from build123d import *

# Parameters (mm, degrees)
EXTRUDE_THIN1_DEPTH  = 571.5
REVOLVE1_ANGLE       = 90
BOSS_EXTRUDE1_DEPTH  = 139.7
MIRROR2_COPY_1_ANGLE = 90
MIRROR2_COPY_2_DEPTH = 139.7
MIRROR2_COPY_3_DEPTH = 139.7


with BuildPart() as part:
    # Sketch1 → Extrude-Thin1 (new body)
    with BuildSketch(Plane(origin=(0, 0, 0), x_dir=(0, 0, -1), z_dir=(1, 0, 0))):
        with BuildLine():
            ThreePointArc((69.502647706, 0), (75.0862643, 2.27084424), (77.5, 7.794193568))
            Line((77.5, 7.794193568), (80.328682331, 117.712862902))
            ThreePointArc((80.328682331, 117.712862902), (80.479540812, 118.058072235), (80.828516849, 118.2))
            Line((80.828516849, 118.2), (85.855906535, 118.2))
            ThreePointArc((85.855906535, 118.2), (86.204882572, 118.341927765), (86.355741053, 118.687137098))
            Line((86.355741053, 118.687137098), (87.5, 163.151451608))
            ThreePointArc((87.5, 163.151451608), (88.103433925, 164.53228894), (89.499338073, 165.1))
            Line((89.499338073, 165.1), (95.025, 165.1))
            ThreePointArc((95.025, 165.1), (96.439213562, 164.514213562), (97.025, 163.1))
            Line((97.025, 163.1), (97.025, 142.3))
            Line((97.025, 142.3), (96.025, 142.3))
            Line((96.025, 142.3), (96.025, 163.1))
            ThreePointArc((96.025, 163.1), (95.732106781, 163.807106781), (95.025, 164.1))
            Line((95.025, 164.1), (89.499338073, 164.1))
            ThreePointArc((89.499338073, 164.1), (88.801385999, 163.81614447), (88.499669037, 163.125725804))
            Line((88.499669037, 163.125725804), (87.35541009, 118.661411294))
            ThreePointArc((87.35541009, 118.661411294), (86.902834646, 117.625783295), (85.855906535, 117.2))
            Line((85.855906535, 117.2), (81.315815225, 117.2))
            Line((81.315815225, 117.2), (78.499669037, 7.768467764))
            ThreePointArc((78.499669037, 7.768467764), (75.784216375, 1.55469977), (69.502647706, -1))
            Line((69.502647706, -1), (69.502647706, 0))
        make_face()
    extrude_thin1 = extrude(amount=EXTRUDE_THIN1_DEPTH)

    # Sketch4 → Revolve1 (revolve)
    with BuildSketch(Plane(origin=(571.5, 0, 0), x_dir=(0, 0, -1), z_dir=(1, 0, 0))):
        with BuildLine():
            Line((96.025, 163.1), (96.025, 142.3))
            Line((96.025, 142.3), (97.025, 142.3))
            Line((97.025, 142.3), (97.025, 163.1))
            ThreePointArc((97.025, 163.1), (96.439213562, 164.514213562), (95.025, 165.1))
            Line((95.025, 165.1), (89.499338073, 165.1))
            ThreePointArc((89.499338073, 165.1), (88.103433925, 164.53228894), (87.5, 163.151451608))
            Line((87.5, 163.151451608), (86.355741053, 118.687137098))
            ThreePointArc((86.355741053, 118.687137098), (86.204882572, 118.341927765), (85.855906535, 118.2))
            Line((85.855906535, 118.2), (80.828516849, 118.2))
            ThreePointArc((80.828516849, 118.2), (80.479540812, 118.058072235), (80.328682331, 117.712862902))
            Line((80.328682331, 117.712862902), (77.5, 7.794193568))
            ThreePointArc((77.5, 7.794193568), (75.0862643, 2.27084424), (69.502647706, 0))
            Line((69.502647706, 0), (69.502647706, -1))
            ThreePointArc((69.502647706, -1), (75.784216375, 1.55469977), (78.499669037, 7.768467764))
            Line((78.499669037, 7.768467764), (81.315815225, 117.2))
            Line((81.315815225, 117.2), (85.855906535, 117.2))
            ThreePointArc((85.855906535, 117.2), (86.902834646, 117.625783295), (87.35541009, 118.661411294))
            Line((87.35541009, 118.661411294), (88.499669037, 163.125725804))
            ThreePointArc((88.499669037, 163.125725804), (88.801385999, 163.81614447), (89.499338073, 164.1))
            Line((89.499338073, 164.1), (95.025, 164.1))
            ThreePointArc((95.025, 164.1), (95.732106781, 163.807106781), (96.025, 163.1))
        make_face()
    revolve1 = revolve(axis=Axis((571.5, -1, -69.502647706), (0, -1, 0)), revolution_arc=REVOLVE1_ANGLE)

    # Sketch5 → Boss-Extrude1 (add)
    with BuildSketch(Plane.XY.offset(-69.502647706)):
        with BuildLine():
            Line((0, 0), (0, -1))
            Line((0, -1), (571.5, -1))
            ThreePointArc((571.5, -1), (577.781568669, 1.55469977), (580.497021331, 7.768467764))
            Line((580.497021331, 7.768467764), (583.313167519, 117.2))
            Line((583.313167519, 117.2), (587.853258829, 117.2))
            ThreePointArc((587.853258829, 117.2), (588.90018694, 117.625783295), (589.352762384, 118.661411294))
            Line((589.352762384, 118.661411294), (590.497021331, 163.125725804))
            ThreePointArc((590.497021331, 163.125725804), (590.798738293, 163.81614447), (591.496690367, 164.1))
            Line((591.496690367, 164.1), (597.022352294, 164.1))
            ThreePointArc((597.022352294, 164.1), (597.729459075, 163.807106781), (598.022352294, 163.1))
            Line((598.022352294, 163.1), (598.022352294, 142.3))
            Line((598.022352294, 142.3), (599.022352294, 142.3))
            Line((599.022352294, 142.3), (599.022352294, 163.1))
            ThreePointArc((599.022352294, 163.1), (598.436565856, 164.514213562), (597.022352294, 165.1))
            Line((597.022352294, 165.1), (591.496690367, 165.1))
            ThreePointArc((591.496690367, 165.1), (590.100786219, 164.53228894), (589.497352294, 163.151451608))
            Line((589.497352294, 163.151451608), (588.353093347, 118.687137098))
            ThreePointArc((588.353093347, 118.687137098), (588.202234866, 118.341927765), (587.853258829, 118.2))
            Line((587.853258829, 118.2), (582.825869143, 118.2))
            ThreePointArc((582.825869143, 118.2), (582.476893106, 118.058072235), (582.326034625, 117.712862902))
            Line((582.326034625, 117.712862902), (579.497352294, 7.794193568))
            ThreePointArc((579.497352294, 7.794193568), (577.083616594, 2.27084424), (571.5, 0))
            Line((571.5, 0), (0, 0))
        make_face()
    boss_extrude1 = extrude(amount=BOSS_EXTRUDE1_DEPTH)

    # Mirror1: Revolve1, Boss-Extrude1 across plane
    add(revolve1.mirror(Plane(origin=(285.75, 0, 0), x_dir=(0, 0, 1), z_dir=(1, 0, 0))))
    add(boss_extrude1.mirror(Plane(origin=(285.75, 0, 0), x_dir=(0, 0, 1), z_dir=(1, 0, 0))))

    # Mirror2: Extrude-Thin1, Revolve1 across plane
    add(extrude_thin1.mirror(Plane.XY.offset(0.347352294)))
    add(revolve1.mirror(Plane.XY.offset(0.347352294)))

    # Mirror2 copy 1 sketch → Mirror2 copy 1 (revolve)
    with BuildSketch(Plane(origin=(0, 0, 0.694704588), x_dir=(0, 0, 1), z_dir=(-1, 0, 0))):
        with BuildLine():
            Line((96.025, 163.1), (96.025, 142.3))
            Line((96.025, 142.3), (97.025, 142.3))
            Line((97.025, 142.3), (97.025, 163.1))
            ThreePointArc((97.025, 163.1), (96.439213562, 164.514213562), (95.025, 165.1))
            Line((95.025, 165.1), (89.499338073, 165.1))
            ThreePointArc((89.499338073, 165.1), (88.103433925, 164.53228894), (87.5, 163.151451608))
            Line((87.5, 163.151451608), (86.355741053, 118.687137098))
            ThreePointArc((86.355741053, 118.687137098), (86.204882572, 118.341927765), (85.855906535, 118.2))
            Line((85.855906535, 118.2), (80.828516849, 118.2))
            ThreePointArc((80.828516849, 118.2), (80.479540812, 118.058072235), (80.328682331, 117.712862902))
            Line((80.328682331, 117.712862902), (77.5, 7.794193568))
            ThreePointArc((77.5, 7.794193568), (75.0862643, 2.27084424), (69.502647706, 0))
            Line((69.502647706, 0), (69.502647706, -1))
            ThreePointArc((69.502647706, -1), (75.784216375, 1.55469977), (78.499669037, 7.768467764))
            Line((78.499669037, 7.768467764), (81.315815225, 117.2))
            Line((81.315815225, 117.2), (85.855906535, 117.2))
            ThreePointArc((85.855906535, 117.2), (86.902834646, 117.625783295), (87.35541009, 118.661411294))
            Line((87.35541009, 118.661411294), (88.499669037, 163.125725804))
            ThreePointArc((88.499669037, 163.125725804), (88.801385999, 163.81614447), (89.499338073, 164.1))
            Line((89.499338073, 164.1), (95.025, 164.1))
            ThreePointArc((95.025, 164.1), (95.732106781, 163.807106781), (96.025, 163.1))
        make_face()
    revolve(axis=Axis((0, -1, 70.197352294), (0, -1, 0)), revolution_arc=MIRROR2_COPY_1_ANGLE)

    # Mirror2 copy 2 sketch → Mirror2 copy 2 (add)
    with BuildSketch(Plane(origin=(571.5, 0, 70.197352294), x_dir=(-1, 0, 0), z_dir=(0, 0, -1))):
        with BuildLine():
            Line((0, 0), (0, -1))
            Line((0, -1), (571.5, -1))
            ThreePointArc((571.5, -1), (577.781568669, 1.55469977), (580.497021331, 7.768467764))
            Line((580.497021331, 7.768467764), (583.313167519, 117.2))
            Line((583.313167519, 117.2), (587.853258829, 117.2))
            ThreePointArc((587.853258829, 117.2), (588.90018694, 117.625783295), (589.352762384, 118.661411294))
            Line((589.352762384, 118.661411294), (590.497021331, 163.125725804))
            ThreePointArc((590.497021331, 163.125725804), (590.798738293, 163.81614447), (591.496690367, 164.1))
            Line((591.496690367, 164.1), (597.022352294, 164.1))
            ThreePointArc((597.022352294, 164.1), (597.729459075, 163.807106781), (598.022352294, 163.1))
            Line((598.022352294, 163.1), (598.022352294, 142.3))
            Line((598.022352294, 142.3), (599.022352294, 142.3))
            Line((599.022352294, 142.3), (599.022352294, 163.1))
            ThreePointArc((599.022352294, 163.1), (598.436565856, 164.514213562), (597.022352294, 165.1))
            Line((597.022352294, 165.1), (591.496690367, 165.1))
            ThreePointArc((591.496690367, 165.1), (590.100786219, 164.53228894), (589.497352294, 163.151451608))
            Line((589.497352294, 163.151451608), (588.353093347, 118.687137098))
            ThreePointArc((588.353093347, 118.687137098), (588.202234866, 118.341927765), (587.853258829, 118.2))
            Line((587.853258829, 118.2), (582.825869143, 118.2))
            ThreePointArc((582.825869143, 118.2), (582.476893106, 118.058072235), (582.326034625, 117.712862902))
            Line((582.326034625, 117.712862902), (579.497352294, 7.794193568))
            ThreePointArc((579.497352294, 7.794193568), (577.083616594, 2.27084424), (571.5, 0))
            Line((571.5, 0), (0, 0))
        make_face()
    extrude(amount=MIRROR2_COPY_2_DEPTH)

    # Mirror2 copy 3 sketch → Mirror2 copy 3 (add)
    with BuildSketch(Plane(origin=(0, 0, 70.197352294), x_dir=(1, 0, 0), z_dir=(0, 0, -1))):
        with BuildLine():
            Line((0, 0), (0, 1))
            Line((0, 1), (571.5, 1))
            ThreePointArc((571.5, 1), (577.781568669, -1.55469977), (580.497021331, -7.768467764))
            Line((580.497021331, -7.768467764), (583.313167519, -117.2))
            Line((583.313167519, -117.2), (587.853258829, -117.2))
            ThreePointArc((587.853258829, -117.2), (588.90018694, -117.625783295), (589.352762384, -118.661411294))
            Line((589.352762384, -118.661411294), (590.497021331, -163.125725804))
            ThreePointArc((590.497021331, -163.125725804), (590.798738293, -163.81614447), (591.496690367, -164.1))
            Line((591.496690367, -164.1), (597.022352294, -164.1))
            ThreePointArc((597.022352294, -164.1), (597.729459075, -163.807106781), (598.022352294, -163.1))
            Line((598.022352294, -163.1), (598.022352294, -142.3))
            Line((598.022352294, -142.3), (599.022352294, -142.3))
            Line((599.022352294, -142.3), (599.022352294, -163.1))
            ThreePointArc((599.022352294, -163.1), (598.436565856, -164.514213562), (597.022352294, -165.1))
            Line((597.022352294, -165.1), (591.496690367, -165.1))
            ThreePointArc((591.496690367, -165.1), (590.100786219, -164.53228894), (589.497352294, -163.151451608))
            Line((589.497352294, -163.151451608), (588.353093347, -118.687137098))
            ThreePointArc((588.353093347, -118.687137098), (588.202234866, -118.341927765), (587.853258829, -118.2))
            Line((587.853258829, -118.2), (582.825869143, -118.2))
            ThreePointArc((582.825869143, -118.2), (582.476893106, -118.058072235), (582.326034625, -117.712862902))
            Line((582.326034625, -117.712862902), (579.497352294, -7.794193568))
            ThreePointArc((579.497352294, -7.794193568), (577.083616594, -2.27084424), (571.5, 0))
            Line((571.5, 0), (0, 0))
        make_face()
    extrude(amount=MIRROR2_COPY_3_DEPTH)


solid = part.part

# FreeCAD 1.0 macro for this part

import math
import FreeCAD as App
import Part
import Sketcher
Q = App.Units.Quantity

doc = App.newDocument("Part")
body = doc.addObject("PartDesign::Body", "Body")

sketch1 = body.newObject("Sketcher::SketchObject", "Sketch")
sketch1.AttachmentSupport = (doc.getObject("YZ_Plane"), [""])
sketch1.MapMode = "FlatFace"
sketch1.addGeometry(Part.ArcOfCircle(Part.Circle(App.Vector(8, -69.5, 0), App.Vector(0, 0, 1), 8), math.radians(-180), math.radians(-91)), False)
sketch1.addGeometry(Part.LineSegment(App.Vector(0, -69.5, 0), App.Vector(-1, -69.5, 0)), False)
sketch1.addGeometry(Part.ArcOfCircle(Part.Circle(App.Vector(8, -69.5, 0), App.Vector(0, 0, 1), 9), math.radians(-180), math.radians(-91)), False)
sketch1.addGeometry(Part.LineSegment(App.Vector(7.8, -78.5, 0), App.Vector(117.2, -81.3, 0)), False)
sketch1.addGeometry(Part.LineSegment(App.Vector(117.2, -81.3, 0), App.Vector(117.2, -85.9, 0)), False)
sketch1.addGeometry(Part.ArcOfCircle(Part.Circle(App.Vector(118.7, -85.9, 0), App.Vector(0, 0, 1), 1.5), math.radians(-180), math.radians(-91)), False)
sketch1.addGeometry(Part.LineSegment(App.Vector(118.7, -87.4, 0), App.Vector(163.1, -88.5, 0)), False)
sketch1.addGeometry(Part.ArcOfCircle(Part.Circle(App.Vector(163.1, -89.5, 0), App.Vector(0, 0, 1), 1), math.radians(0), math.radians(89)), False)
sketch1.addGeometry(Part.LineSegment(App.Vector(164.1, -89.5, 0), App.Vector(164.1, -95, 0)), False)
sketch1.addGeometry(Part.ArcOfCircle(Part.Circle(App.Vector(163.1, -95, 0), App.Vector(0, 0, 1), 1), math.radians(-90), math.radians(0)), False)
sketch1.addGeometry(Part.LineSegment(App.Vector(163.1, -96, 0), App.Vector(142.3, -96, 0)), False)
sketch1.addGeometry(Part.LineSegment(App.Vector(142.3, -96, 0), App.Vector(142.3, -97, 0)), False)
sketch1.addGeometry(Part.LineSegment(App.Vector(142.3, -97, 0), App.Vector(163.1, -97, 0)), False)
sketch1.addGeometry(Part.ArcOfCircle(Part.Circle(App.Vector(163.1, -95, 0), App.Vector(0, 0, 1), 2), math.radians(-90), math.radians(0)), False)
sketch1.addGeometry(Part.LineSegment(App.Vector(165.1, -95, 0), App.Vector(165.1, -89.5, 0)), False)
sketch1.addGeometry(Part.ArcOfCircle(Part.Circle(App.Vector(163.1, -89.5, 0), App.Vector(0, 0, 1), 2), math.radians(0), math.radians(89)), False)
sketch1.addGeometry(Part.LineSegment(App.Vector(163.2, -87.5, 0), App.Vector(118.7, -86.4, 0)), False)
sketch1.addGeometry(Part.ArcOfCircle(Part.Circle(App.Vector(118.7, -85.9, 0), App.Vector(0, 0, 1), 0.5), math.radians(180), math.radians(269)), False)
sketch1.addGeometry(Part.LineSegment(App.Vector(118.2, -85.9, 0), App.Vector(118.2, -80.8, 0)), False)
sketch1.addGeometry(Part.ArcOfCircle(Part.Circle(App.Vector(117.7, -80.8, 0), App.Vector(0, 0, 1), 0.5), math.radians(0), math.radians(89)), False)
sketch1.addGeometry(Part.LineSegment(App.Vector(117.7, -80.3, 0), App.Vector(7.8, -77.5, 0)), False)
sketch1.addConstraint(Sketcher.Constraint("Coincident", 0, 1, 1, 1))
sketch1.addConstraint(Sketcher.Constraint("Coincident", 1, 2, 2, 1))
sketch1.addConstraint(Sketcher.Constraint("Tangent", 2, 2, 3, 1))
sketch1.addConstraint(Sketcher.Constraint("Coincident", 3, 2, 4, 1))
sketch1.addConstraint(Sketcher.Constraint("Tangent", 4, 2, 5, 1))
sketch1.addConstraint(Sketcher.Constraint("Tangent", 5, 2, 6, 1))
sketch1.addConstraint(Sketcher.Constraint("Tangent", 6, 2, 7, 2))
sketch1.addConstraint(Sketcher.Constraint("Tangent", 7, 1, 8, 1))
sketch1.addConstraint(Sketcher.Constraint("Tangent", 8, 2, 9, 2))
sketch1.addConstraint(Sketcher.Constraint("Tangent", 9, 1, 10, 1))
sketch1.addConstraint(Sketcher.Constraint("Coincident", 10, 2, 11, 1))
sketch1.addConstraint(Sketcher.Constraint("Coincident", 11, 2, 12, 1))
sketch1.addConstraint(Sketcher.Constraint("Tangent", 12, 2, 13, 1))
sketch1.addConstraint(Sketcher.Constraint("Tangent", 13, 2, 14, 1))
sketch1.addConstraint(Sketcher.Constraint("Tangent", 14, 2, 15, 1))
sketch1.addConstraint(Sketcher.Constraint("Tangent", 15, 2, 16, 1))
sketch1.addConstraint(Sketcher.Constraint("Tangent", 16, 2, 17, 2))
sketch1.addConstraint(Sketcher.Constraint("Tangent", 17, 1, 18, 1))
sketch1.addConstraint(Sketcher.Constraint("Tangent", 18, 2, 19, 1))
sketch1.addConstraint(Sketcher.Constraint("Tangent", 19, 2, 20, 1))
sketch1.addConstraint(Sketcher.Constraint("Tangent", 20, 2, 0, 2))
sketch1.addConstraint(Sketcher.Constraint("Horizontal", 1))
sketch1.addConstraint(Sketcher.Constraint("Vertical", 4))
sketch1.addConstraint(Sketcher.Constraint("Vertical", 8))
sketch1.addConstraint(Sketcher.Constraint("Horizontal", 10))
sketch1.addConstraint(Sketcher.Constraint("Vertical", 11))
sketch1.addConstraint(Sketcher.Constraint("Horizontal", 12))
sketch1.addConstraint(Sketcher.Constraint("Vertical", 14))
sketch1.addConstraint(Sketcher.Constraint("Vertical", 18))
sketch1.addConstraint(Sketcher.Constraint("Coincident", 2, 3, 0, 3))
sketch1.addConstraint(Sketcher.Constraint("Coincident", 13, 3, 9, 3))
sketch1.addConstraint(Sketcher.Constraint("Coincident", 15, 3, 7, 3))
sketch1.addConstraint(Sketcher.Constraint("Coincident", 17, 3, 5, 3))
sketch1.addConstraint(Sketcher.Constraint("Equal", 7, 9))
sketch1.addConstraint(Sketcher.Constraint("Equal", 17, 19))
sketch1.addConstraint(Sketcher.Constraint("PointOnObject", 0, 1, -2))
sketch1.addConstraint(Sketcher.Constraint("Parallel", 3, 6))
sketch1.addConstraint(Sketcher.Constraint("Parallel", 6, 16))
sketch1.addConstraint(Sketcher.Constraint("Parallel", 16, 20))
sketch1.addConstraint(Sketcher.Constraint("Horizontal", 2, 3, 0, 1))
sketch1.addConstraint(Sketcher.Constraint("Equal", 1, 11))
sketch1.addConstraint(Sketcher.Constraint("Radius", 0, Q("8 mm")))
sketch1.addConstraint(Sketcher.Constraint("Radius", 2, Q("9 mm")))
sketch1.addConstraint(Sketcher.Constraint("Radius", 7, Q("1 mm")))
sketch1.addConstraint(Sketcher.Constraint("Radius", 5, Q("1.5 mm")))
sketch1.addConstraint(Sketcher.Constraint("DistanceX", 10, 2, 10, 1, Q("20.8 mm")))
sketch1.addConstraint(Sketcher.Constraint("DistanceX", -1, 1, 5, 3, Q("118.7 mm")))
sketch1.addConstraint(Sketcher.Constraint("DistanceX", -1, 1, 7, 3, Q("163.1 mm")))
sketch1.addConstraint(Sketcher.Constraint("DistanceY", 15, 2, -1, 1, Q("87.5 mm")))
sketch1.addConstraint(Sketcher.Constraint("DistanceY", 20, 2, -1, 1, Q("77.5 mm")))
sketch1.addConstraint(Sketcher.Constraint("DistanceY", 9, 3, -1, 1, Q("95.025 mm")))
sketch1.addConstraint(Sketcher.Constraint("DistanceY", 4, 2, 4, 1, Q("4.540091 mm")))
pad1 = body.newObject("PartDesign::Pad", "Pad")
pad1.Profile = sketch1
pad1.Length = 571.5

sketch2 = body.newObject("Sketcher::SketchObject", "Sketch001")
sketch2.AttachmentSupport = (doc.getObject("YZ_Plane"), [""])
sketch2.MapMode = "FlatFace"
sketch2.AttachmentOffset = App.Placement(App.Vector(0, 0, 571.5), App.Rotation())
sketch2.addGeometry(Part.LineSegment(App.Vector(163.1, -96, 0), App.Vector(142.3, -96, 0)), False)
sketch2.addGeometry(Part.LineSegment(App.Vector(142.3, -96, 0), App.Vector(142.3, -97, 0)), False)
sketch2.addGeometry(Part.LineSegment(App.Vector(142.3, -97, 0), App.Vector(163.1, -97, 0)), False)
sketch2.addGeometry(Part.ArcOfCircle(Part.Circle(App.Vector(163.1, -95, 0), App.Vector(0, 0, 1), 2), math.radians(-90), math.radians(0)), False)
sketch2.addGeometry(Part.LineSegment(App.Vector(165.1, -95, 0), App.Vector(165.1, -89.5, 0)), False)
sketch2.addGeometry(Part.ArcOfCircle(Part.Circle(App.Vector(163.1, -89.5, 0), App.Vector(0, 0, 1), 2), math.radians(0), math.radians(89)), False)
sketch2.addGeometry(Part.LineSegment(App.Vector(163.2, -87.5, 0), App.Vector(118.7, -86.4, 0)), False)
sketch2.addGeometry(Part.ArcOfCircle(Part.Circle(App.Vector(118.7, -85.9, 0), App.Vector(0, 0, 1), 0.5), math.radians(180), math.radians(269)), False)
sketch2.addGeometry(Part.LineSegment(App.Vector(118.2, -85.9, 0), App.Vector(118.2, -80.8, 0)), False)
sketch2.addGeometry(Part.ArcOfCircle(Part.Circle(App.Vector(117.7, -80.8, 0), App.Vector(0, 0, 1), 0.5), math.radians(0), math.radians(89)), False)
sketch2.addGeometry(Part.LineSegment(App.Vector(117.7, -80.3, 0), App.Vector(7.8, -77.5, 0)), False)
sketch2.addGeometry(Part.ArcOfCircle(Part.Circle(App.Vector(8, -69.5, 0), App.Vector(0, 0, 1), 8), math.radians(-180), math.radians(-91)), False)
sketch2.addGeometry(Part.LineSegment(App.Vector(0, -69.5, 0), App.Vector(-1, -69.5, 0)), False)
sketch2.addGeometry(Part.ArcOfCircle(Part.Circle(App.Vector(8, -69.5, 0), App.Vector(0, 0, 1), 9), math.radians(-180), math.radians(-91)), False)
sketch2.addGeometry(Part.LineSegment(App.Vector(7.8, -78.5, 0), App.Vector(117.2, -81.3, 0)), False)
sketch2.addGeometry(Part.LineSegment(App.Vector(117.2, -81.3, 0), App.Vector(117.2, -85.9, 0)), False)
sketch2.addGeometry(Part.ArcOfCircle(Part.Circle(App.Vector(118.7, -85.9, 0), App.Vector(0, 0, 1), 1.5), math.radians(-180), math.radians(-91)), False)
sketch2.addGeometry(Part.LineSegment(App.Vector(118.7, -87.4, 0), App.Vector(163.1, -88.5, 0)), False)
sketch2.addGeometry(Part.ArcOfCircle(Part.Circle(App.Vector(163.1, -89.5, 0), App.Vector(0, 0, 1), 1), math.radians(0), math.radians(89)), False)
sketch2.addGeometry(Part.LineSegment(App.Vector(164.1, -89.5, 0), App.Vector(164.1, -95, 0)), False)
sketch2.addGeometry(Part.ArcOfCircle(Part.Circle(App.Vector(163.1, -95, 0), App.Vector(0, 0, 1), 1), math.radians(-90), math.radians(0)), False)
sketch2.addGeometry(Part.LineSegment(App.Vector(165.1, -69.5, 0), App.Vector(-1, -69.5, 0)), True)
sketch2.addConstraint(Sketcher.Constraint("Coincident", 0, 2, 1, 1))
sketch2.addConstraint(Sketcher.Constraint("Coincident", 1, 2, 2, 1))
sketch2.addConstraint(Sketcher.Constraint("Tangent", 2, 2, 3, 1))
sketch2.addConstraint(Sketcher.Constraint("Tangent", 3, 2, 4, 1))
sketch2.addConstraint(Sketcher.Constraint("Tangent", 4, 2, 5, 1))
sketch2.addConstraint(Sketcher.Constraint("Tangent", 5, 2, 6, 1))
sketch2.addConstraint(Sketcher.Constraint("Tangent", 6, 2, 7, 2))
sketch2.addConstraint(Sketcher.Constraint("Tangent", 7, 1, 8, 1))
sketch2.addConstraint(Sketcher.Constraint("Tangent", 8, 2, 9, 1))
sketch2.addConstraint(Sketcher.Constraint("Tangent", 9, 2, 10, 1))
sketch2.addConstraint(Sketcher.Constraint("Tangent", 10, 2, 11, 2))
sketch2.addConstraint(Sketcher.Constraint("Coincident", 11, 1, 12, 1))
sketch2.addConstraint(Sketcher.Constraint("Coincident", 12, 2, 13, 1))
sketch2.addConstraint(Sketcher.Constraint("Tangent", 13, 2, 14, 1))
sketch2.addConstraint(Sketcher.Constraint("Coincident", 14, 2, 15, 1))
sketch2.addConstraint(Sketcher.Constraint("Tangent", 15, 2, 16, 1))
sketch2.addConstraint(Sketcher.Constraint("Tangent", 16, 2, 17, 1))
sketch2.addConstraint(Sketcher.Constraint("Tangent", 17, 2, 18, 2))
sketch2.addConstraint(Sketcher.Constraint("Tangent", 18, 1, 19, 1))
sketch2.addConstraint(Sketcher.Constraint("Tangent", 19, 2, 20, 2))
sketch2.addConstraint(Sketcher.Constraint("Tangent", 20, 1, 0, 1))
sketch2.addConstraint(Sketcher.Constraint("Horizontal", 0))
sketch2.addConstraint(Sketcher.Constraint("Vertical", 1))
sketch2.addConstraint(Sketcher.Constraint("Horizontal", 2))
sketch2.addConstraint(Sketcher.Constraint("Vertical", 4))
sketch2.addConstraint(Sketcher.Constraint("Vertical", 8))
sketch2.addConstraint(Sketcher.Constraint("Horizontal", 12))
sketch2.addConstraint(Sketcher.Constraint("Vertical", 15))
sketch2.addConstraint(Sketcher.Constraint("Vertical", 19))
sketch2.addConstraint(Sketcher.Constraint("Horizontal", 21))
sketch2.addConstraint(Sketcher.Constraint("Coincident", 13, 3, 11, 3))
sketch2.addConstraint(Sketcher.Constraint("Coincident", 16, 3, 7, 3))
sketch2.addConstraint(Sketcher.Constraint("Coincident", 18, 3, 5, 3))
sketch2.addConstraint(Sketcher.Constraint("Coincident", 20, 3, 3, 3))
sketch2.addConstraint(Sketcher.Constraint("Coincident", 21, 2, 12, 2))
sketch2.addConstraint(Sketcher.Constraint("Equal", 3, 5))
sketch2.addConstraint(Sketcher.Constraint("Equal", 7, 9))
sketch2.addConstraint(Sketcher.Constraint("PointOnObject", 11, 1, -2))
sketch2.addConstraint(Sketcher.Constraint("Parallel", 6, 10))
sketch2.addConstraint(Sketcher.Constraint("Parallel", 10, 14))
sketch2.addConstraint(Sketcher.Constraint("Parallel", 14, 17))
sketch2.addConstraint(Sketcher.Constraint("Horizontal", 13, 3, 11, 1))
sketch2.addConstraint(Sketcher.Constraint("Vertical", 4, 2, 21, 1))
sketch2.addConstraint(Sketcher.Constraint("Equal", 12, 1))
sketch2.addConstraint(Sketcher.Constraint("Radius", 3, Q("2 mm")))
sketch2.addConstraint(Sketcher.Constraint("Radius", 11, Q("8 mm")))
sketch2.addConstraint(Sketcher.Constraint("Radius", 13, Q("9 mm")))
sketch2.addConstraint(Sketcher.Constraint("Radius", 7, Q("0.5 mm")))
sketch2.addConstraint(Sketcher.Constraint("DistanceX", 0, 2, 0, 1, Q("20.8 mm")))
sketch2.addConstraint(Sketcher.Constraint("DistanceX", 21, 2, 21, 1, Q("166.1 mm")))
sketch2.addConstraint(Sketcher.Constraint("DistanceX", -1, 1, 7, 3, Q("118.7 mm")))
sketch2.addConstraint(Sketcher.Constraint("DistanceY", 5, 2, -1, 1, Q("87.5 mm")))
sketch2.addConstraint(Sketcher.Constraint("DistanceY", 10, 2, -1, 1, Q("77.5 mm")))
sketch2.addConstraint(Sketcher.Constraint("DistanceY", 3, 3, -1, 1, Q("95.025 mm")))
sketch2.addConstraint(Sketcher.Constraint("DistanceY", 8, 1, 8, 2, Q("5.02739 mm")))
revolution = body.newObject("PartDesign::Revolution", "Revolution")
revolution.Profile = sketch2
revolution.ReferenceAxis = (sketch2, ["Axis0"])
revolution.Angle = 90

sketch3 = body.newObject("Sketcher::SketchObject", "Sketch002")
sketch3.AttachmentSupport = (doc.getObject("XY_Plane"), [""])
sketch3.MapMode = "FlatFace"
sketch3.AttachmentOffset = App.Placement(App.Vector(0, 0, -69.502648), App.Rotation())
sketch3.addGeometry(Part.LineSegment(App.Vector(0, 0, 0), App.Vector(0, -1, 0)), False)
sketch3.addGeometry(Part.LineSegment(App.Vector(0, -1, 0), App.Vector(571.5, -1, 0)), False)
sketch3.addGeometry(Part.ArcOfCircle(Part.Circle(App.Vector(571.5, 8, 0), App.Vector(0, 0, 1), 9), math.radians(-90), math.radians(-1)), False)
sketch3.addGeometry(Part.LineSegment(App.Vector(580.5, 7.8, 0), App.Vector(583.3, 117.2, 0)), False)
sketch3.addGeometry(Part.LineSegment(App.Vector(583.3, 117.2, 0), App.Vector(587.9, 117.2, 0)), False)
sketch3.addGeometry(Part.ArcOfCircle(Part.Circle(App.Vector(587.9, 118.7, 0), App.Vector(0, 0, 1), 1.5), math.radians(-90), math.radians(-1)), False)
sketch3.addGeometry(Part.LineSegment(App.Vector(589.4, 118.7, 0), App.Vector(590.5, 163.1, 0)), False)
sketch3.addGeometry(Part.ArcOfCircle(Part.Circle(App.Vector(591.5, 163.1, 0), App.Vector(0, 0, 1), 1), math.radians(90), math.radians(179)), False)
sketch3.addGeometry(Part.LineSegment(App.Vector(591.5, 164.1, 0), App.Vector(597, 164.1, 0)), False)
sketch3.addGeometry(Part.ArcOfCircle(Part.Circle(App.Vector(597, 163.1, 0), App.Vector(0, 0, 1), 1), math.radians(0), math.radians(90)), False)
sketch3.addGeometry(Part.LineSegment(App.Vector(598, 163.1, 0), App.Vector(598, 142.3, 0)), False)
sketch3.addGeometry(Part.LineSegment(App.Vector(598, 142.3, 0), App.Vector(599, 142.3, 0)), False)
sketch3.addGeometry(Part.LineSegment(App.Vector(599, 142.3, 0), App.Vector(599, 163.1, 0)), False)
sketch3.addGeometry(Part.ArcOfCircle(Part.Circle(App.Vector(597, 163.1, 0), App.Vector(0, 0, 1), 2), math.radians(0), math.radians(90)), False)
sketch3.addGeometry(Part.LineSegment(App.Vector(597, 165.1, 0), App.Vector(591.5, 165.1, 0)), False)
sketch3.addGeometry(Part.ArcOfCircle(Part.Circle(App.Vector(591.5, 163.1, 0), App.Vector(0, 0, 1), 2), math.radians(90), math.radians(179)), False)
sketch3.addGeometry(Part.LineSegment(App.Vector(589.5, 163.2, 0), App.Vector(588.4, 118.7, 0)), False)
sketch3.addGeometry(Part.ArcOfCircle(Part.Circle(App.Vector(587.9, 118.7, 0), App.Vector(0, 0, 1), 0.5), math.radians(-90), math.radians(-1)), False)
sketch3.addGeometry(Part.LineSegment(App.Vector(587.9, 118.2, 0), App.Vector(582.8, 118.2, 0)), False)
sketch3.addGeometry(Part.ArcOfCircle(Part.Circle(App.Vector(582.8, 117.7, 0), App.Vector(0, 0, 1), 0.5), math.radians(90), math.radians(179)), False)
sketch3.addGeometry(Part.LineSegment(App.Vector(582.3, 117.7, 0), App.Vector(579.5, 7.8, 0)), False)
sketch3.addGeometry(Part.ArcOfCircle(Part.Circle(App.Vector(571.5, 8, 0), App.Vector(0, 0, 1), 8), math.radians(-90), math.radians(-1)), False)
sketch3.addGeometry(Part.LineSegment(App.Vector(571.5, 0, 0), App.Vector(0, 0, 0)), False)
sketch3.addConstraint(Sketcher.Constraint("Coincident", 0, 2, 1, 1))
sketch3.addConstraint(Sketcher.Constraint("Tangent", 1, 2, 2, 1))
sketch3.addConstraint(Sketcher.Constraint("Tangent", 2, 2, 3, 1))
sketch3.addConstraint(Sketcher.Constraint("Coincident", 3, 2, 4, 1))
sketch3.addConstraint(Sketcher.Constraint("Tangent", 4, 2, 5, 1))
sketch3.addConstraint(Sketcher.Constraint("Tangent", 5, 2, 6, 1))
sketch3.addConstraint(Sketcher.Constraint("Tangent", 6, 2, 7, 2))
sketch3.addConstraint(Sketcher.Constraint("Tangent", 7, 1, 8, 1))
sketch3.addConstraint(Sketcher.Constraint("Tangent", 8, 2, 9, 2))
sketch3.addConstraint(Sketcher.Constraint("Tangent", 9, 1, 10, 1))
sketch3.addConstraint(Sketcher.Constraint("Coincident", 10, 2, 11, 1))
sketch3.addConstraint(Sketcher.Constraint("Coincident", 11, 2, 12, 1))
sketch3.addConstraint(Sketcher.Constraint("Tangent", 12, 2, 13, 1))
sketch3.addConstraint(Sketcher.Constraint("Tangent", 13, 2, 14, 1))
sketch3.addConstraint(Sketcher.Constraint("Tangent", 14, 2, 15, 1))
sketch3.addConstraint(Sketcher.Constraint("Tangent", 15, 2, 16, 1))
sketch3.addConstraint(Sketcher.Constraint("Tangent", 16, 2, 17, 2))
sketch3.addConstraint(Sketcher.Constraint("Tangent", 17, 1, 18, 1))
sketch3.addConstraint(Sketcher.Constraint("Tangent", 18, 2, 19, 1))
sketch3.addConstraint(Sketcher.Constraint("Tangent", 19, 2, 20, 1))
sketch3.addConstraint(Sketcher.Constraint("Tangent", 20, 2, 21, 2))
sketch3.addConstraint(Sketcher.Constraint("Tangent", 21, 1, 22, 1))
sketch3.addConstraint(Sketcher.Constraint("Coincident", 22, 2, 0, 1))
sketch3.addConstraint(Sketcher.Constraint("Vertical", 0))
sketch3.addConstraint(Sketcher.Constraint("Horizontal", 1))
sketch3.addConstraint(Sketcher.Constraint("Horizontal", 4))
sketch3.addConstraint(Sketcher.Constraint("Horizontal", 8))
sketch3.addConstraint(Sketcher.Constraint("Vertical", 10))
sketch3.addConstraint(Sketcher.Constraint("Horizontal", 11))
sketch3.addConstraint(Sketcher.Constraint("Vertical", 12))
sketch3.addConstraint(Sketcher.Constraint("Horizontal", 14))
sketch3.addConstraint(Sketcher.Constraint("Horizontal", 18))
sketch3.addConstraint(Sketcher.Constraint("Horizontal", 22))
sketch3.addConstraint(Sketcher.Constraint("Coincident", 22, 2, -1, 1))
sketch3.addConstraint(Sketcher.Constraint("Coincident", 13, 3, 9, 3))
sketch3.addConstraint(Sketcher.Constraint("Coincident", 15, 3, 7, 3))
sketch3.addConstraint(Sketcher.Constraint("Coincident", 17, 3, 5, 3))
sketch3.addConstraint(Sketcher.Constraint("Coincident", 21, 3, 2, 3))
sketch3.addConstraint(Sketcher.Constraint("Equal", 7, 9))
sketch3.addConstraint(Sketcher.Constraint("Equal", 17, 19))
sketch3.addConstraint(Sketcher.Constraint("Parallel", 3, 6))
sketch3.addConstraint(Sketcher.Constraint("Parallel", 6, 16))
sketch3.addConstraint(Sketcher.Constraint("Parallel", 16, 20))
sketch3.addConstraint(Sketcher.Constraint("Equal", 11, 0))
sketch3.addConstraint(Sketcher.Constraint("Radius", 2, Q("9 mm")))
sketch3.addConstraint(Sketcher.Constraint("Radius", 7, Q("1 mm")))
sketch3.addConstraint(Sketcher.Constraint("Radius", 13, Q("2 mm")))
sketch3.addConstraint(Sketcher.Constraint("Radius", 5, Q("1.5 mm")))
sketch3.addConstraint(Sketcher.Constraint("DistanceX", 1, 1, 1, 2, Q("571.5 mm")))
sketch3.addConstraint(Sketcher.Constraint("DistanceY", 10, 2, 10, 1, Q("20.8 mm")))
sketch3.addConstraint(Sketcher.Constraint("DistanceY", -1, 1, 5, 3, Q("118.7 mm")))
sketch3.addConstraint(Sketcher.Constraint("DistanceY", -1, 1, 7, 3, Q("163.1 mm")))
sketch3.addConstraint(Sketcher.Constraint("DistanceX", 4, 1, 4, 2, Q("4.540091 mm")))
sketch3.addConstraint(Sketcher.Constraint("DistanceX", 8, 1, 8, 2, Q("5.525662 mm")))
sketch3.addConstraint(Sketcher.Constraint("Distance", 20, Q("109.95506 mm")))
pad2 = body.newObject("PartDesign::Pad", "Pad001")
pad2.Profile = sketch3
pad2.Length = 139.7
doc.recompute()

datumplane = body.newObject("PartDesign::Plane", "DatumPlane")
datumplane.AttachmentSupport = (doc.getObject("YZ_Plane"), [""])
datumplane.MapMode = "FlatFace"
datumplane.AttachmentOffset = App.Placement(App.Vector(0, 0, 285.75), App.Rotation())
mirrored = body.newObject("PartDesign::Mirrored", "Mirrored")
mirrored.Originals = [revolution, pad2]
mirrored.MirrorPlane = (datumplane, [""])
body.Tip = mirrored
doc.recompute()

datumplane2 = body.newObject("PartDesign::Plane", "DatumPlane001")
datumplane2.AttachmentSupport = (doc.getObject("XY_Plane"), [""])
datumplane2.MapMode = "FlatFace"
datumplane2.AttachmentOffset = App.Placement(App.Vector(0, 0, 0.347352), App.Rotation())
mirrored2 = body.newObject("PartDesign::Mirrored", "Mirrored001")
mirrored2.Originals = [pad1, revolution]
mirrored2.MirrorPlane = (datumplane2, [""])
body.Tip = mirrored2

sketch4 = body.newObject("Sketcher::SketchObject", "Sketch003")
sketch4.AttachmentSupport = (doc.getObject("YZ_Plane"), [""])
sketch4.MapMode = "FlatFace"
sketch4.addGeometry(Part.LineSegment(App.Vector(163.1, 96.7, 0), App.Vector(142.3, 96.7, 0)), False)
sketch4.addGeometry(Part.LineSegment(App.Vector(142.3, 96.7, 0), App.Vector(142.3, 97.7, 0)), False)
sketch4.addGeometry(Part.LineSegment(App.Vector(142.3, 97.7, 0), App.Vector(163.1, 97.7, 0)), False)
sketch4.addGeometry(Part.ArcOfCircle(Part.Circle(App.Vector(163.1, 95.7, 0), App.Vector(0, 0, 1), 2), math.radians(0), math.radians(90)), False)
sketch4.addGeometry(Part.LineSegment(App.Vector(165.1, 95.7, 0), App.Vector(165.1, 90.2, 0)), False)
sketch4.addGeometry(Part.ArcOfCircle(Part.Circle(App.Vector(163.1, 90.2, 0), App.Vector(0, 0, 1), 2), math.radians(-89), math.radians(0)), False)
sketch4.addGeometry(Part.LineSegment(App.Vector(163.2, 88.2, 0), App.Vector(118.7, 87.1, 0)), False)
sketch4.addGeometry(Part.ArcOfCircle(Part.Circle(App.Vector(118.7, 86.6, 0), App.Vector(0, 0, 1), 0.5), math.radians(91), math.radians(180)), False)
sketch4.addGeometry(Part.LineSegment(App.Vector(118.2, 86.6, 0), App.Vector(118.2, 81.5, 0)), False)
sketch4.addGeometry(Part.ArcOfCircle(Part.Circle(App.Vector(117.7, 81.5, 0), App.Vector(0, 0, 1), 0.5), math.radians(-89), math.radians(0)), False)
sketch4.addGeometry(Part.LineSegment(App.Vector(117.7, 81, 0), App.Vector(7.8, 78.2, 0)), False)
sketch4.addGeometry(Part.ArcOfCircle(Part.Circle(App.Vector(8, 70.2, 0), App.Vector(0, 0, 1), 8), math.radians(91), math.radians(180)), False)
sketch4.addGeometry(Part.LineSegment(App.Vector(0, 70.2, 0), App.Vector(-1, 70.2, 0)), False)
sketch4.addGeometry(Part.ArcOfCircle(Part.Circle(App.Vector(8, 70.2, 0), App.Vector(0, 0, 1), 9), math.radians(91), math.radians(180)), False)
sketch4.addGeometry(Part.LineSegment(App.Vector(7.8, 79.2, 0), App.Vector(117.2, 82, 0)), False)
sketch4.addGeometry(Part.LineSegment(App.Vector(117.2, 82, 0), App.Vector(117.2, 86.6, 0)), False)
sketch4.addGeometry(Part.ArcOfCircle(Part.Circle(App.Vector(118.7, 86.6, 0), App.Vector(0, 0, 1), 1.5), math.radians(91), math.radians(180)), False)
sketch4.addGeometry(Part.LineSegment(App.Vector(118.7, 88.1, 0), App.Vector(163.1, 89.2, 0)), False)
sketch4.addGeometry(Part.ArcOfCircle(Part.Circle(App.Vector(163.1, 90.2, 0), App.Vector(0, 0, 1), 1), math.radians(-89), math.radians(0)), False)
sketch4.addGeometry(Part.LineSegment(App.Vector(164.1, 90.2, 0), App.Vector(164.1, 95.7, 0)), False)
sketch4.addGeometry(Part.ArcOfCircle(Part.Circle(App.Vector(163.1, 95.7, 0), App.Vector(0, 0, 1), 1), math.radians(0), math.radians(90)), False)
sketch4.addGeometry(Part.LineSegment(App.Vector(165.1, 70.2, 0), App.Vector(-1, 70.2, 0)), True)
sketch4.addConstraint(Sketcher.Constraint("Coincident", 0, 2, 1, 1))
sketch4.addConstraint(Sketcher.Constraint("Coincident", 1, 2, 2, 1))
sketch4.addConstraint(Sketcher.Constraint("Tangent", 2, 2, 3, 2))
sketch4.addConstraint(Sketcher.Constraint("Tangent", 3, 1, 4, 1))
sketch4.addConstraint(Sketcher.Constraint("Tangent", 4, 2, 5, 2))
sketch4.addConstraint(Sketcher.Constraint("Tangent", 5, 1, 6, 1))
sketch4.addConstraint(Sketcher.Constraint("Tangent", 6, 2, 7, 1))
sketch4.addConstraint(Sketcher.Constraint("Tangent", 7, 2, 8, 1))
sketch4.addConstraint(Sketcher.Constraint("Tangent", 8, 2, 9, 2))
sketch4.addConstraint(Sketcher.Constraint("Tangent", 9, 1, 10, 1))
sketch4.addConstraint(Sketcher.Constraint("Tangent", 10, 2, 11, 1))
sketch4.addConstraint(Sketcher.Constraint("Coincident", 11, 2, 12, 1))
sketch4.addConstraint(Sketcher.Constraint("Coincident", 12, 2, 13, 2))
sketch4.addConstraint(Sketcher.Constraint("Tangent", 13, 1, 14, 1))
sketch4.addConstraint(Sketcher.Constraint("Coincident", 14, 2, 15, 1))
sketch4.addConstraint(Sketcher.Constraint("Tangent", 15, 2, 16, 2))
sketch4.addConstraint(Sketcher.Constraint("Tangent", 16, 1, 17, 1))
sketch4.addConstraint(Sketcher.Constraint("Tangent", 17, 2, 18, 1))
sketch4.addConstraint(Sketcher.Constraint("Tangent", 18, 2, 19, 1))
sketch4.addConstraint(Sketcher.Constraint("Tangent", 19, 2, 20, 1))
sketch4.addConstraint(Sketcher.Constraint("Tangent", 20, 2, 0, 1))
sketch4.addConstraint(Sketcher.Constraint("Horizontal", 0))
sketch4.addConstraint(Sketcher.Constraint("Vertical", 1))
sketch4.addConstraint(Sketcher.Constraint("Horizontal", 2))
sketch4.addConstraint(Sketcher.Constraint("Vertical", 4))
sketch4.addConstraint(Sketcher.Constraint("Vertical", 8))
sketch4.addConstraint(Sketcher.Constraint("Horizontal", 12))
sketch4.addConstraint(Sketcher.Constraint("Vertical", 15))
sketch4.addConstraint(Sketcher.Constraint("Vertical", 19))
sketch4.addConstraint(Sketcher.Constraint("Horizontal", 21))
sketch4.addConstraint(Sketcher.Constraint("Coincident", 13, 3, 11, 3))
sketch4.addConstraint(Sketcher.Constraint("Coincident", 16, 3, 7, 3))
sketch4.addConstraint(Sketcher.Constraint("Coincident", 18, 3, 5, 3))
sketch4.addConstraint(Sketcher.Constraint("Coincident", 20, 3, 3, 3))
sketch4.addConstraint(Sketcher.Constraint("Coincident", 21, 2, 12, 2))
sketch4.addConstraint(Sketcher.Constraint("Equal", 3, 5))
sketch4.addConstraint(Sketcher.Constraint("Equal", 7, 9))
sketch4.addConstraint(Sketcher.Constraint("PointOnObject", 11, 2, -2))
sketch4.addConstraint(Sketcher.Constraint("Parallel", 6, 10))
sketch4.addConstraint(Sketcher.Constraint("Parallel", 10, 14))
sketch4.addConstraint(Sketcher.Constraint("Parallel", 14, 17))
sketch4.addConstraint(Sketcher.Constraint("Horizontal", 13, 3, 11, 2))
sketch4.addConstraint(Sketcher.Constraint("Vertical", 4, 2, 21, 1))
sketch4.addConstraint(Sketcher.Constraint("Equal", 12, 1))
sketch4.addConstraint(Sketcher.Constraint("Radius", 3, Q("2 mm")))
sketch4.addConstraint(Sketcher.Constraint("Radius", 11, Q("8 mm")))
sketch4.addConstraint(Sketcher.Constraint("Radius", 13, Q("9 mm")))
sketch4.addConstraint(Sketcher.Constraint("Radius", 7, Q("0.5 mm")))
sketch4.addConstraint(Sketcher.Constraint("DistanceX", 0, 2, 0, 1, Q("20.8 mm")))
sketch4.addConstraint(Sketcher.Constraint("DistanceX", 21, 2, 21, 1, Q("166.1 mm")))
sketch4.addConstraint(Sketcher.Constraint("DistanceX", -1, 1, 7, 3, Q("118.7 mm")))
sketch4.addConstraint(Sketcher.Constraint("DistanceY", 5, 1, 3, 3, Q("7.525 mm")))
sketch4.addConstraint(Sketcher.Constraint("DistanceY", 8, 2, 8, 1, Q("5.02739 mm")))
sketch4.addConstraint(Sketcher.Constraint("Distance", 10, Q("109.95506 mm")))
sketch4.addConstraint(Sketcher.Constraint("DistanceY", -1, 1, 7, 3, Q("86.550611 mm")))
revolution2 = body.newObject("PartDesign::Revolution", "Revolution001")
revolution2.Profile = sketch4
revolution2.ReferenceAxis = (sketch4, ["Axis0"])
revolution2.Angle = 90

sketch5 = body.newObject("Sketcher::SketchObject", "Sketch004")
sketch5.AttachmentSupport = (doc.getObject("XY_Plane"), [""])
sketch5.MapMode = "FlatFace"
sketch5.AttachmentOffset = App.Placement(App.Vector(0, 0, 70.197352), App.Rotation())
sketch5.addGeometry(Part.LineSegment(App.Vector(571.5, 0, 0), App.Vector(571.5, -1, 0)), False)
sketch5.addGeometry(Part.LineSegment(App.Vector(571.5, -1, 0), App.Vector(0, -1, 0)), False)
sketch5.addGeometry(Part.ArcOfCircle(Part.Circle(App.Vector(0, 8, 0), App.Vector(0, 0, 1), 9), math.radians(-179), math.radians(-90)), False)
sketch5.addGeometry(Part.LineSegment(App.Vector(-9, 7.8, 0), App.Vector(-11.8, 117.2, 0)), False)
sketch5.addGeometry(Part.LineSegment(App.Vector(-11.8, 117.2, 0), App.Vector(-16.4, 117.2, 0)), False)
sketch5.addGeometry(Part.ArcOfCircle(Part.Circle(App.Vector(-16.4, 118.7, 0), App.Vector(0, 0, 1), 1.5), math.radians(-179), math.radians(-90)), False)
sketch5.addGeometry(Part.LineSegment(App.Vector(-17.9, 118.7, 0), App.Vector(-19, 163.1, 0)), False)
sketch5.addGeometry(Part.ArcOfCircle(Part.Circle(App.Vector(-20, 163.1, 0), App.Vector(0, 0, 1), 1), math.radians(1), math.radians(90)), False)
sketch5.addGeometry(Part.LineSegment(App.Vector(-20, 164.1, 0), App.Vector(-25.5, 164.1, 0)), False)
sketch5.addGeometry(Part.ArcOfCircle(Part.Circle(App.Vector(-25.5, 163.1, 0), App.Vector(0, 0, 1), 1), math.radians(90), math.radians(180)), False)
sketch5.addGeometry(Part.LineSegment(App.Vector(-26.5, 163.1, 0), App.Vector(-26.5, 142.3, 0)), False)
sketch5.addGeometry(Part.LineSegment(App.Vector(-26.5, 142.3, 0), App.Vector(-27.5, 142.3, 0)), False)
sketch5.addGeometry(Part.LineSegment(App.Vector(-27.5, 142.3, 0), App.Vector(-27.5, 163.1, 0)), False)
sketch5.addGeometry(Part.ArcOfCircle(Part.Circle(App.Vector(-25.5, 163.1, 0), App.Vector(0, 0, 1), 2), math.radians(90), math.radians(180)), False)
sketch5.addGeometry(Part.LineSegment(App.Vector(-25.5, 165.1, 0), App.Vector(-20, 165.1, 0)), False)
sketch5.addGeometry(Part.ArcOfCircle(Part.Circle(App.Vector(-20, 163.1, 0), App.Vector(0, 0, 1), 2), math.radians(1), math.radians(90)), False)
sketch5.addGeometry(Part.LineSegment(App.Vector(-18, 163.2, 0), App.Vector(-16.9, 118.7, 0)), False)
sketch5.addGeometry(Part.ArcOfCircle(Part.Circle(App.Vector(-16.4, 118.7, 0), App.Vector(0, 0, 1), 0.5), math.radians(-179), math.radians(-90)), False)
sketch5.addGeometry(Part.LineSegment(App.Vector(-16.4, 118.2, 0), App.Vector(-11.3, 118.2, 0)), False)
sketch5.addGeometry(Part.ArcOfCircle(Part.Circle(App.Vector(-11.3, 117.7, 0), App.Vector(0, 0, 1), 0.5), math.radians(1), math.radians(90)), False)
sketch5.addGeometry(Part.LineSegment(App.Vector(-10.8, 117.7, 0), App.Vector(-8, 7.8, 0)), False)
sketch5.addGeometry(Part.ArcOfCircle(Part.Circle(App.Vector(0, 8, 0), App.Vector(0, 0, 1), 8), math.radians(-179), math.radians(-90)), False)
sketch5.addGeometry(Part.LineSegment(App.Vector(0, 0, 0), App.Vector(571.5, 0, 0)), False)
sketch5.addConstraint(Sketcher.Constraint("Coincident", 0, 2, 1, 1))
sketch5.addConstraint(Sketcher.Constraint("Tangent", 1, 2, 2, 2))
sketch5.addConstraint(Sketcher.Constraint("Tangent", 2, 1, 3, 1))
sketch5.addConstraint(Sketcher.Constraint("Coincident", 3, 2, 4, 1))
sketch5.addConstraint(Sketcher.Constraint("Tangent", 4, 2, 5, 2))
sketch5.addConstraint(Sketcher.Constraint("Tangent", 5, 1, 6, 1))
sketch5.addConstraint(Sketcher.Constraint("Tangent", 6, 2, 7, 1))
sketch5.addConstraint(Sketcher.Constraint("Tangent", 7, 2, 8, 1))
sketch5.addConstraint(Sketcher.Constraint("Tangent", 8, 2, 9, 1))
sketch5.addConstraint(Sketcher.Constraint("Tangent", 9, 2, 10, 1))
sketch5.addConstraint(Sketcher.Constraint("Coincident", 10, 2, 11, 1))
sketch5.addConstraint(Sketcher.Constraint("Coincident", 11, 2, 12, 1))
sketch5.addConstraint(Sketcher.Constraint("Tangent", 12, 2, 13, 2))
sketch5.addConstraint(Sketcher.Constraint("Tangent", 13, 1, 14, 1))
sketch5.addConstraint(Sketcher.Constraint("Tangent", 14, 2, 15, 2))
sketch5.addConstraint(Sketcher.Constraint("Tangent", 15, 1, 16, 1))
sketch5.addConstraint(Sketcher.Constraint("Tangent", 16, 2, 17, 1))
sketch5.addConstraint(Sketcher.Constraint("Tangent", 17, 2, 18, 1))
sketch5.addConstraint(Sketcher.Constraint("Tangent", 18, 2, 19, 2))
sketch5.addConstraint(Sketcher.Constraint("Tangent", 19, 1, 20, 1))
sketch5.addConstraint(Sketcher.Constraint("Tangent", 20, 2, 21, 1))
sketch5.addConstraint(Sketcher.Constraint("Tangent", 21, 2, 22, 1))
sketch5.addConstraint(Sketcher.Constraint("Coincident", 22, 2, 0, 1))
sketch5.addConstraint(Sketcher.Constraint("Vertical", 0))
sketch5.addConstraint(Sketcher.Constraint("Horizontal", 1))
sketch5.addConstraint(Sketcher.Constraint("Horizontal", 4))
sketch5.addConstraint(Sketcher.Constraint("Horizontal", 8))
sketch5.addConstraint(Sketcher.Constraint("Vertical", 10))
sketch5.addConstraint(Sketcher.Constraint("Horizontal", 11))
sketch5.addConstraint(Sketcher.Constraint("Vertical", 12))
sketch5.addConstraint(Sketcher.Constraint("Horizontal", 14))
sketch5.addConstraint(Sketcher.Constraint("Horizontal", 18))
sketch5.addConstraint(Sketcher.Constraint("Horizontal", 22))
sketch5.addConstraint(Sketcher.Constraint("Coincident", 21, 2, -1, 1))
sketch5.addConstraint(Sketcher.Constraint("Coincident", 13, 3, 9, 3))
sketch5.addConstraint(Sketcher.Constraint("Coincident", 15, 3, 7, 3))
sketch5.addConstraint(Sketcher.Constraint("Coincident", 17, 3, 5, 3))
sketch5.addConstraint(Sketcher.Constraint("Coincident", 21, 3, 2, 3))
sketch5.addConstraint(Sketcher.Constraint("Equal", 7, 9))
sketch5.addConstraint(Sketcher.Constraint("Equal", 17, 19))
sketch5.addConstraint(Sketcher.Constraint("Parallel", 3, 6))
sketch5.addConstraint(Sketcher.Constraint("Parallel", 6, 16))
sketch5.addConstraint(Sketcher.Constraint("Parallel", 16, 20))
sketch5.addConstraint(Sketcher.Constraint("Equal", 11, 0))
sketch5.addConstraint(Sketcher.Constraint("Radius", 2, Q("9 mm")))
sketch5.addConstraint(Sketcher.Constraint("Radius", 7, Q("1 mm")))
sketch5.addConstraint(Sketcher.Constraint("Radius", 13, Q("2 mm")))
sketch5.addConstraint(Sketcher.Constraint("Radius", 5, Q("1.5 mm")))
sketch5.addConstraint(Sketcher.Constraint("DistanceX", 1, 2, 1, 1, Q("571.5 mm")))
sketch5.addConstraint(Sketcher.Constraint("DistanceY", 10, 2, 10, 1, Q("20.8 mm")))
sketch5.addConstraint(Sketcher.Constraint("DistanceY", -1, 1, 5, 3, Q("118.7 mm")))
sketch5.addConstraint(Sketcher.Constraint("DistanceY", -1, 1, 7, 3, Q("163.1 mm")))
sketch5.addConstraint(Sketcher.Constraint("DistanceX", 4, 2, 4, 1, Q("4.540091 mm")))
sketch5.addConstraint(Sketcher.Constraint("DistanceX", 8, 2, 8, 1, Q("5.525662 mm")))
sketch5.addConstraint(Sketcher.Constraint("Distance", 20, Q("109.95506 mm")))
pad3 = body.newObject("PartDesign::Pad", "Pad002")
pad3.Profile = sketch5
pad3.Length = 139.7
pad3.Reversed = True

sketch6 = body.newObject("Sketcher::SketchObject", "Sketch005")
sketch6.AttachmentSupport = (doc.getObject("XY_Plane"), [""])
sketch6.MapMode = "FlatFace"
sketch6.AttachmentOffset = App.Placement(App.Vector(0, 0, 70.197352), App.Rotation())
sketch6.addGeometry(Part.LineSegment(App.Vector(0, -1, 0), App.Vector(0, 0, 0)), False)
sketch6.addGeometry(Part.LineSegment(App.Vector(0, 0, 0), App.Vector(571.5, 0, 0)), False)
sketch6.addGeometry(Part.ArcOfCircle(Part.Circle(App.Vector(571.5, 8, 0), App.Vector(0, 0, 1), 8), math.radians(-90), math.radians(-1)), False)
sketch6.addGeometry(Part.LineSegment(App.Vector(579.5, 7.8, 0), App.Vector(582.3, 117.7, 0)), False)
sketch6.addGeometry(Part.ArcOfCircle(Part.Circle(App.Vector(582.8, 117.7, 0), App.Vector(0, 0, 1), 0.5), math.radians(90), math.radians(179)), False)
sketch6.addGeometry(Part.LineSegment(App.Vector(582.8, 118.2, 0), App.Vector(587.9, 118.2, 0)), False)
sketch6.addGeometry(Part.ArcOfCircle(Part.Circle(App.Vector(587.9, 118.7, 0), App.Vector(0, 0, 1), 0.5), math.radians(-90), math.radians(-1)), False)
sketch6.addGeometry(Part.LineSegment(App.Vector(588.4, 118.7, 0), App.Vector(589.5, 163.2, 0)), False)
sketch6.addGeometry(Part.ArcOfCircle(Part.Circle(App.Vector(591.5, 163.1, 0), App.Vector(0, 0, 1), 2), math.radians(90), math.radians(179)), False)
sketch6.addGeometry(Part.LineSegment(App.Vector(591.5, 165.1, 0), App.Vector(597, 165.1, 0)), False)
sketch6.addGeometry(Part.ArcOfCircle(Part.Circle(App.Vector(597, 163.1, 0), App.Vector(0, 0, 1), 2), math.radians(0), math.radians(90)), False)
sketch6.addGeometry(Part.LineSegment(App.Vector(599, 163.1, 0), App.Vector(599, 142.3, 0)), False)
sketch6.addGeometry(Part.LineSegment(App.Vector(599, 142.3, 0), App.Vector(598, 142.3, 0)), False)
sketch6.addGeometry(Part.LineSegment(App.Vector(598, 142.3, 0), App.Vector(598, 163.1, 0)), False)
sketch6.addGeometry(Part.ArcOfCircle(Part.Circle(App.Vector(597, 163.1, 0), App.Vector(0, 0, 1), 1), math.radians(0), math.radians(90)), False)
sketch6.addGeometry(Part.LineSegment(App.Vector(597, 164.1, 0), App.Vector(591.5, 164.1, 0)), False)
sketch6.addGeometry(Part.ArcOfCircle(Part.Circle(App.Vector(591.5, 163.1, 0), App.Vector(0, 0, 1), 1), math.radians(90), math.radians(179)), False)
sketch6.addGeometry(Part.LineSegment(App.Vector(590.5, 163.1, 0), App.Vector(589.4, 118.7, 0)), False)
sketch6.addGeometry(Part.ArcOfCircle(Part.Circle(App.Vector(587.9, 118.7, 0), App.Vector(0, 0, 1), 1.5), math.radians(-90), math.radians(-1)), False)
sketch6.addGeometry(Part.LineSegment(App.Vector(587.9, 117.2, 0), App.Vector(583.3, 117.2, 0)), False)
sketch6.addGeometry(Part.LineSegment(App.Vector(583.3, 117.2, 0), App.Vector(580.5, 7.8, 0)), False)
sketch6.addGeometry(Part.ArcOfCircle(Part.Circle(App.Vector(571.5, 8, 0), App.Vector(0, 0, 1), 9), math.radians(-90), math.radians(-1)), False)
sketch6.addGeometry(Part.LineSegment(App.Vector(571.5, -1, 0), App.Vector(0, -1, 0)), False)
sketch6.addConstraint(Sketcher.Constraint("Coincident", 0, 2, 1, 1))
sketch6.addConstraint(Sketcher.Constraint("Tangent", 1, 2, 2, 1))
sketch6.addConstraint(Sketcher.Constraint("Tangent", 2, 2, 3, 1))
sketch6.addConstraint(Sketcher.Constraint("Tangent", 3, 2, 4, 2))
sketch6.addConstraint(Sketcher.Constraint("Tangent", 4, 1, 5, 1))
sketch6.addConstraint(Sketcher.Constraint("Tangent", 5, 2, 6, 1))
sketch6.addConstraint(Sketcher.Constraint("Tangent", 6, 2, 7, 1))
sketch6.addConstraint(Sketcher.Constraint("Tangent", 7, 2, 8, 2))
sketch6.addConstraint(Sketcher.Constraint("Tangent", 8, 1, 9, 1))
sketch6.addConstraint(Sketcher.Constraint("Tangent", 9, 2, 10, 2))
sketch6.addConstraint(Sketcher.Constraint("Tangent", 10, 1, 11, 1))
sketch6.addConstraint(Sketcher.Constraint("Coincident", 11, 2, 12, 1))
sketch6.addConstraint(Sketcher.Constraint("Coincident", 12, 2, 13, 1))
sketch6.addConstraint(Sketcher.Constraint("Tangent", 13, 2, 14, 1))
sketch6.addConstraint(Sketcher.Constraint("Tangent", 14, 2, 15, 1))
sketch6.addConstraint(Sketcher.Constraint("Tangent", 15, 2, 16, 1))
sketch6.addConstraint(Sketcher.Constraint("Tangent", 16, 2, 17, 1))
sketch6.addConstraint(Sketcher.Constraint("Tangent", 17, 2, 18, 2))
sketch6.addConstraint(Sketcher.Constraint("Tangent", 18, 1, 19, 1))
sketch6.addConstraint(Sketcher.Constraint("Coincident", 19, 2, 20, 1))
sketch6.addConstraint(Sketcher.Constraint("Tangent", 20, 2, 21, 2))
sketch6.addConstraint(Sketcher.Constraint("Tangent", 21, 1, 22, 1))
sketch6.addConstraint(Sketcher.Constraint("Coincident", 22, 2, 0, 1))
sketch6.addConstraint(Sketcher.Constraint("Vertical", 0))
sketch6.addConstraint(Sketcher.Constraint("Horizontal", 1))
sketch6.addConstraint(Sketcher.Constraint("Horizontal", 5))
sketch6.addConstraint(Sketcher.Constraint("Horizontal", 9))
sketch6.addConstraint(Sketcher.Constraint("Vertical", 11))
sketch6.addConstraint(Sketcher.Constraint("Horizontal", 12))
sketch6.addConstraint(Sketcher.Constraint("Vertical", 13))
sketch6.addConstraint(Sketcher.Constraint("Horizontal", 15))
sketch6.addConstraint(Sketcher.Constraint("Horizontal", 19))
sketch6.addConstraint(Sketcher.Constraint("Horizontal", 22))
sketch6.addConstraint(Sketcher.Constraint("Coincident", 0, 2, -1, 1))
sketch6.addConstraint(Sketcher.Constraint("Coincident", 14, 3, 10, 3))
sketch6.addConstraint(Sketcher.Constraint("Coincident", 16, 3, 8, 3))
sketch6.addConstraint(Sketcher.Constraint("Coincident", 18, 3, 6, 3))
sketch6.addConstraint(Sketcher.Constraint("Coincident", 21, 3, 2, 3))
sketch6.addConstraint(Sketcher.Constraint("Equal", 4, 6))
sketch6.addConstraint(Sketcher.Constraint("Equal", 8, 10))
sketch6.addConstraint(Sketcher.Constraint("Parallel", 3, 7))
sketch6.addConstraint(Sketcher.Constraint("Parallel", 7, 17))
sketch6.addConstraint(Sketcher.Constraint("Parallel", 17, 20))
sketch6.addConstraint(Sketcher.Constraint("Equal", 12, 0))
sketch6.addConstraint(Sketcher.Constraint("Radius", 2, Q("8 mm")))
sketch6.addConstraint(Sketcher.Constraint("Radius", 8, Q("2 mm")))
sketch6.addConstraint(Sketcher.Constraint("Radius", 14, Q("1 mm")))
sketch6.addConstraint(Sketcher.Constraint("Radius", 4, Q("0.5 mm")))
sketch6.addConstraint(Sketcher.Constraint("DistanceX", 1, 1, 1, 2, Q("571.5 mm")))
sketch6.addConstraint(Sketcher.Constraint("DistanceY", 11, 2, 11, 1, Q("20.8 mm")))
sketch6.addConstraint(Sketcher.Constraint("DistanceY", -1, 1, 4, 3, Q("117.7 mm")))
sketch6.addConstraint(Sketcher.Constraint("DistanceY", -1, 1, 8, 3, Q("163.1 mm")))
sketch6.addConstraint(Sketcher.Constraint("DistanceX", 7, 2, 10, 3, Q("7.525 mm")))
sketch6.addConstraint(Sketcher.Constraint("DistanceX", 5, 1, 5, 2, Q("5.02739 mm")))
sketch6.addConstraint(Sketcher.Constraint("Distance", 3, Q("109.95506 mm")))
pad4 = body.newObject("PartDesign::Pad", "Pad003")
pad4.Profile = sketch6
pad4.Length = 139.7
pad4.Reversed = True

doc.recompute()
